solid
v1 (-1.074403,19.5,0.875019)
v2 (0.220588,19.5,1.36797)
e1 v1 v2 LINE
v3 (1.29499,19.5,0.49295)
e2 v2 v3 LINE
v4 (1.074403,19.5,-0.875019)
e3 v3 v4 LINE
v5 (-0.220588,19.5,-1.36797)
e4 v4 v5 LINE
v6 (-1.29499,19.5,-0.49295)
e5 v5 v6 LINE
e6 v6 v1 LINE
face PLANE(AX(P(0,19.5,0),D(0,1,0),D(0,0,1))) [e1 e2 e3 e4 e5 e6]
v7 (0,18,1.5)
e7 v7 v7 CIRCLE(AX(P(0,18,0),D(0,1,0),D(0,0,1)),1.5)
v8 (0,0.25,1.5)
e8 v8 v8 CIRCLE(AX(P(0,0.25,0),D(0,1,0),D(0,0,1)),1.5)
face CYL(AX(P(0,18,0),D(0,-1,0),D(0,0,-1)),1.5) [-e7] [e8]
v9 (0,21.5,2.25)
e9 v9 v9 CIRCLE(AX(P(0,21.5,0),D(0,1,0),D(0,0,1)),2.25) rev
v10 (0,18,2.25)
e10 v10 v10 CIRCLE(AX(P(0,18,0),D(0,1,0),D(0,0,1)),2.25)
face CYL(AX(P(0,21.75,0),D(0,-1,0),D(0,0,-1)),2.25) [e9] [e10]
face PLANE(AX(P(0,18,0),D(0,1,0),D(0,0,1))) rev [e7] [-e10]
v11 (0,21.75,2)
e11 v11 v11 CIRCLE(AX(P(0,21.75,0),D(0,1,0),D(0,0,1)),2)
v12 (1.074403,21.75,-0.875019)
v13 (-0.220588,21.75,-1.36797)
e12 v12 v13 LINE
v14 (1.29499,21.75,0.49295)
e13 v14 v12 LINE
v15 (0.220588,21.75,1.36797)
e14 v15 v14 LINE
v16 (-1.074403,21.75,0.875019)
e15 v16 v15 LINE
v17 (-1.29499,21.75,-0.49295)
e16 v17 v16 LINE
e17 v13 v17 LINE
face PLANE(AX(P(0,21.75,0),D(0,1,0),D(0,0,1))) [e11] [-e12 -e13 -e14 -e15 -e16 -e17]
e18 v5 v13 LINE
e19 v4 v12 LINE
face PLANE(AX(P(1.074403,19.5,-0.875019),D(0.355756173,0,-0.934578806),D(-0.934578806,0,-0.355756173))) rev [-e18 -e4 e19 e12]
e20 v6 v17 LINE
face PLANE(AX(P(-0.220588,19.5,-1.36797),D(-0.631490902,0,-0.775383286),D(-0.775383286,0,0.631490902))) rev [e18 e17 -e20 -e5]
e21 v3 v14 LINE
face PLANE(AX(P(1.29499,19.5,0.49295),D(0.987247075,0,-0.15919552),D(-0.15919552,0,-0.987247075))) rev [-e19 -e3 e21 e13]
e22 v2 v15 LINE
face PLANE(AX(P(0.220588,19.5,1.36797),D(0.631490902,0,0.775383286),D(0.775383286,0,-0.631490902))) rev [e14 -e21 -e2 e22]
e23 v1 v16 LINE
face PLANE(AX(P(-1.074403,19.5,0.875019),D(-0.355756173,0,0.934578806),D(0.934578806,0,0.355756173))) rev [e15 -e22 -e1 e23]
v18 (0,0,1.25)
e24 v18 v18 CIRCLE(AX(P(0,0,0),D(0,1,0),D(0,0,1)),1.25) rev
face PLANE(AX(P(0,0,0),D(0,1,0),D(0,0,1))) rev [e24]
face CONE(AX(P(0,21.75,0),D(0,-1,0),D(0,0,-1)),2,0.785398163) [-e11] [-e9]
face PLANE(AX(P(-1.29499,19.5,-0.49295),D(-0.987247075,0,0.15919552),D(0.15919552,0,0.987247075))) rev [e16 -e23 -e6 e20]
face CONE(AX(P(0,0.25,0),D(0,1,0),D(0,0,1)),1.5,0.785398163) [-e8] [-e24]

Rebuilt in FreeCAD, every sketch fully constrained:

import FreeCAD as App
import Part
import Sketcher
from FreeCAD import Vector


def edges_at(feature, points):
    """Names of the edges that pass closest to the given points."""
    edges = feature.Shape.Edges
    near = lambda p: min(range(len(edges)), key=lambda i: edges[i].distToShape(Part.Vertex(*p))[0])
    return sorted({f"Edge{near(p) + 1}" for p in points})

doc = App.newDocument("Part")
body = doc.addObject("PartDesign::Body", "Body")

# Sketch on XZ plane
sketch1 = body.newObject("Sketcher::SketchObject", "Sketch")
sketch1.AttachmentSupport = (doc.getObject("XZ_Plane"), [""])
sketch1.MapMode = "FlatFace"
sketch1.addGeometry(Part.Circle(Vector(0, 0, 0), Vector(0, 0, 1), 1.5), False)
sketch1.addConstraint(Sketcher.Constraint("Coincident", 0, 3, -1, 1))
sketch1.addConstraint(Sketcher.Constraint("Diameter", 0, 3.0))
pad1 = body.newObject("PartDesign::Pad", "Pad")
pad1.Profile = sketch1
pad1.Length = 18
pad1.Reversed = True

# Sketch on XZ plane
sketch2 = body.newObject("Sketcher::SketchObject", "Sketch001")
sketch2.AttachmentSupport = (doc.getObject("XZ_Plane"), [""])
sketch2.MapMode = "FlatFace"
sketch2.AttachmentOffset = App.Placement(Vector(0, 0, -18), App.Rotation())
sketch2.addGeometry(Part.Circle(Vector(0, 0, 0), Vector(0, 0, 1), 2.2), False)
sketch2.addConstraint(Sketcher.Constraint("Coincident", 0, 3, -1, 1))
sketch2.addConstraint(Sketcher.Constraint("Diameter", 0, 4.5))
pad2 = body.newObject("PartDesign::Pad", "Pad001")
pad2.Profile = sketch2
pad2.Length = 3.75
pad2.Reversed = True

# Sketch on XZ plane
sketch3 = body.newObject("Sketcher::SketchObject", "Sketch002")
sketch3.AttachmentSupport = (doc.getObject("XZ_Plane"), [""])
sketch3.MapMode = "FlatFace"
sketch3.AttachmentOffset = App.Placement(Vector(0, 0, -21.75), App.Rotation())
sketch3.addGeometry(Part.LineSegment(Vector(-1.1, 0.9, 0), Vector(0.2, 1.4, 0)), False)
sketch3.addGeometry(Part.LineSegment(Vector(0.2, 1.4, 0), Vector(1.3, 0.5, 0)), False)
sketch3.addGeometry(Part.LineSegment(Vector(1.3, 0.5, 0), Vector(1.1, -0.9, 0)), False)
sketch3.addGeometry(Part.LineSegment(Vector(1.1, -0.9, 0), Vector(-0.2, -1.4, 0)), False)
sketch3.addGeometry(Part.LineSegment(Vector(-0.2, -1.4, 0), Vector(-1.3, -0.5, 0)), False)
sketch3.addGeometry(Part.LineSegment(Vector(-1.3, -0.5, 0), Vector(-1.1, 0.9, 0)), False)
sketch3.addConstraint(Sketcher.Constraint("Coincident", 0, 2, 1, 1))
sketch3.addConstraint(Sketcher.Constraint("Coincident", 1, 2, 2, 1))
sketch3.addConstraint(Sketcher.Constraint("Coincident", 2, 2, 3, 1))
sketch3.addConstraint(Sketcher.Constraint("Coincident", 3, 2, 4, 1))
sketch3.addConstraint(Sketcher.Constraint("Coincident", 4, 2, 5, 1))
sketch3.addConstraint(Sketcher.Constraint("Coincident", 5, 2, 0, 1))
sketch3.addConstraint(Sketcher.Constraint("Symmetric", 0, 2, 3, 2, -1, 1))
sketch3.addConstraint(Sketcher.Constraint("Symmetric", 1, 2, 4, 2, -1, 1))
sketch3.addConstraint(Sketcher.Constraint("Symmetric", 2, 2, 5, 2, -1, 1))
sketch3.addConstraint(Sketcher.Constraint("Equal", 0, 1))
sketch3.addConstraint(Sketcher.Constraint("Equal", 1, 2))
sketch3.addConstraint(Sketcher.Constraint("DistanceY", 4, 2, 1, 2, 0.9859))
sketch3.addConstraint(Sketcher.Constraint("Distance", 0, 1.385641))
sketch3.addConstraint(Sketcher.Constraint("DistanceY", -1, 1, 0, 2, 1.36797))
sketch3.addConstraint(Sketcher.Constraint("DistanceX", -1, 1, 1, 2, 1.29499))
pocket1 = body.newObject("PartDesign::Pocket", "Pocket")
pocket1.Profile = sketch3
pocket1.Length = 2.25
pocket1.Reversed = True
doc.recompute()

chamfer = body.newObject("PartDesign::Chamfer", "Chamfer")
chamfer.Base = (pocket1, edges_at(pocket1, [(0, 21.75, -2.25)]))
chamfer.Size = 0.25
doc.recompute()

chamfer2 = body.newObject("PartDesign::Chamfer", "Chamfer001")
chamfer2.Base = (chamfer, edges_at(chamfer, [(0, 0, -1.5)]))
chamfer2.Size = 0.25

doc.recompute()
